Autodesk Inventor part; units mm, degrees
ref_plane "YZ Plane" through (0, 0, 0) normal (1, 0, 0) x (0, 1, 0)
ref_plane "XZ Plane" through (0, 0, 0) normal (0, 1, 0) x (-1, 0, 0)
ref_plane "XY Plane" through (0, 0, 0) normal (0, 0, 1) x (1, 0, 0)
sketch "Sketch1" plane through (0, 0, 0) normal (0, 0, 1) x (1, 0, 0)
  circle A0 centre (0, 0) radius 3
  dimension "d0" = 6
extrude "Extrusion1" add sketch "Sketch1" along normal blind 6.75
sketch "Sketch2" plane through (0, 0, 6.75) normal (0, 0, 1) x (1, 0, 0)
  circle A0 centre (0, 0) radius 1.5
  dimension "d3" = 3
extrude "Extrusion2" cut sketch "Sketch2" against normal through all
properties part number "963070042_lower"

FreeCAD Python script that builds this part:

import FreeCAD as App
import Part
import Sketcher

V = App.Vector
Q = App.Units.Quantity

doc = App.newDocument("Part")
body = doc.addObject("PartDesign::Body", "Body")

# Sketch on XY plane
sketch1 = doc.addObject("Sketcher::SketchObject", "Sketch")
body.addObject(sketch1)
sketch1.AttachmentSupport = (doc.XY_Plane, [""])
sketch1.MapMode = "FlatFace"
sketch1.addGeometry(Part.Circle(V(0, 0, 0), V(0, 0, 1), 3), False)
sketch1.addConstraint([
    Sketcher.Constraint("Coincident", 0, 3, -1, 1),
    Sketcher.Constraint("Diameter", 0, Q("6 mm")),
])
pad1 = doc.addObject("PartDesign::Pad", "Pad")
body.addObject(pad1)
pad1.Profile = sketch1
pad1.Length = 6.75

# Sketch on XY plane
sketch2 = doc.addObject("Sketcher::SketchObject", "Sketch001")
body.addObject(sketch2)
sketch2.AttachmentSupport = (doc.XY_Plane, [""])
sketch2.MapMode = "FlatFace"
sketch2.AttachmentOffset = App.Placement(V(0, 0, 6.75), App.Rotation())
sketch2.addGeometry(Part.Circle(V(0, 0, 0), V(0, 0, 1), 1.5), False)
sketch2.addConstraint([
    Sketcher.Constraint("Coincident", 0, 3, -1, 1),
    Sketcher.Constraint("Diameter", 0, Q("3 mm")),
])
pocket1 = doc.addObject("PartDesign::Pocket", "Pocket")
body.addObject(pocket1)
pocket1.Profile = sketch2
pocket1.Type = "ThroughAll"

doc.recompute()
